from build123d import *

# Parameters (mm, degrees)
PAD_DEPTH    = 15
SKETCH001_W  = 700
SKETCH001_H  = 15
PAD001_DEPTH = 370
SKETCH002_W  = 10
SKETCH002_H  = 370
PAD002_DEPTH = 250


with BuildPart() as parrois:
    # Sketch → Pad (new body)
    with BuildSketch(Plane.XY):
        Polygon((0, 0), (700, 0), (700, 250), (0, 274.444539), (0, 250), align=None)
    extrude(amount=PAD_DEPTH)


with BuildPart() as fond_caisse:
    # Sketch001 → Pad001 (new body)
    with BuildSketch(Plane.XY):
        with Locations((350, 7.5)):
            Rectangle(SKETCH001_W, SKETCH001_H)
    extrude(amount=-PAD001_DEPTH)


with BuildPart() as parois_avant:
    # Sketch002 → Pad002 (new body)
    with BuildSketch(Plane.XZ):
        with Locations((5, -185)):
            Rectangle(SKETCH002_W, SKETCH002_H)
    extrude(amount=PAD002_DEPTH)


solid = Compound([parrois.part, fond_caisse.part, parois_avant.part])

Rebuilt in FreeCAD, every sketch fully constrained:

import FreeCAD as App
import Part
import Sketcher
Q = App.Units.Quantity

doc = App.newDocument("Part")
body = doc.addObject("PartDesign::Body", "Body")

# Sketch on XY plane
sketch1 = body.newObject("Sketcher::SketchObject", "Sketch")
sketch1.AttachmentSupport = (doc.getObject("XY_Plane"), [""])
sketch1.MapMode = "FlatFace"
sketch1.addGeometry([
    Part.LineSegment(App.Vector(0, 0, 0), App.Vector(700, 0, 0)),
    Part.LineSegment(App.Vector(700, 0, 0), App.Vector(700, 250, 0)),
    Part.LineSegment(App.Vector(700, 250, 0), App.Vector(0, 274, 0)),
    Part.LineSegment(App.Vector(0, 274, 0), App.Vector(0, 0, 0)),
], False)
sketch1.addConstraint([
    Sketcher.Constraint("Coincident", 0, 2, 1, 1),
    Sketcher.Constraint("Coincident", 1, 2, 2, 1),
    Sketcher.Constraint("Coincident", 2, 2, 3, 1),
    Sketcher.Constraint("Coincident", 3, 2, 0, 1),
    Sketcher.Constraint("Horizontal", 0),
    Sketcher.Constraint("Vertical", 1),
    Sketcher.Constraint("Vertical", 3),
    Sketcher.Constraint("Coincident", 3, 2, -1, 1),
    Sketcher.Constraint("DistanceX", 0, 1, 0, 2, 700.0),
    Sketcher.Constraint("DistanceY", 1, 1, 1, 2, 250.0),
    Sketcher.Constraint("Angle", 2, Q("178 deg")),
])
pad1 = body.newObject("PartDesign::Pad", "Pad")
pad1.Profile = sketch1
pad1.Length = 15
body2 = doc.addObject("PartDesign::Body", "Body001")

# Sketch on XY plane
sketch2 = body2.newObject("Sketcher::SketchObject", "Sketch001")
sketch2.AttachmentSupport = (doc.getObject("XY_Plane001"), [""])
sketch2.MapMode = "FlatFace"
sketch2.addGeometry([
    Part.LineSegment(App.Vector(0, 15, 0), App.Vector(0, 0, 0)),
    Part.LineSegment(App.Vector(0, 0, 0), App.Vector(700, 0, 0)),
    Part.LineSegment(App.Vector(700, 0, 0), App.Vector(700, 15, 0)),
    Part.LineSegment(App.Vector(700, 15, 0), App.Vector(0, 15, 0)),
], False)
sketch2.addConstraint([
    Sketcher.Constraint("Coincident", 0, 2, 1, 1),
    Sketcher.Constraint("Coincident", 1, 2, 2, 1),
    Sketcher.Constraint("Coincident", 2, 2, 3, 1),
    Sketcher.Constraint("Coincident", 3, 2, 0, 1),
    Sketcher.Constraint("Vertical", 0),
    Sketcher.Constraint("Horizontal", 1),
    Sketcher.Constraint("Vertical", 2),
    Sketcher.Constraint("Horizontal", 3),
    Sketcher.Constraint("Coincident", 0, 2, -1, 1),
    Sketcher.Constraint("DistanceX", 1, 1, 1, 2, 700.0),
    Sketcher.Constraint("DistanceY", 0, 2, 0, 1, 15.0),
])
pad2 = body2.newObject("PartDesign::Pad", "Pad001")
pad2.Profile = sketch2
pad2.Length = 370
pad2.Reversed = True
body3 = doc.addObject("PartDesign::Body", "Body002")

# Sketch on XZ plane
sketch3 = body3.newObject("Sketcher::SketchObject", "Sketch002")
sketch3.AttachmentSupport = (doc.getObject("XZ_Plane002"), [""])
sketch3.MapMode = "FlatFace"
sketch3.addGeometry([
    Part.LineSegment(App.Vector(0, 0, 0), App.Vector(0, -370, 0)),
    Part.LineSegment(App.Vector(0, -370, 0), App.Vector(10, -370, 0)),
    Part.LineSegment(App.Vector(10, -370, 0), App.Vector(10, 0, 0)),
    Part.LineSegment(App.Vector(10, 0, 0), App.Vector(0, 0, 0)),
], False)
sketch3.addConstraint([
    Sketcher.Constraint("Coincident", 0, 2, 1, 1),
    Sketcher.Constraint("Coincident", 1, 2, 2, 1),
    Sketcher.Constraint("Coincident", 2, 2, 3, 1),
    Sketcher.Constraint("Coincident", 3, 2, 0, 1),
    Sketcher.Constraint("Vertical", 0),
    Sketcher.Constraint("Horizontal", 1),
    Sketcher.Constraint("Vertical", 2),
    Sketcher.Constraint("Horizontal", 3),
    Sketcher.Constraint("Coincident", 3, 2, -1, 1),
    Sketcher.Constraint("DistanceX", 1, 1, 1, 2, 10.0),
    Sketcher.Constraint("DistanceY", 0, 2, 0, 1, 370.0),
])
pad3 = body3.newObject("PartDesign::Pad", "Pad002")
pad3.Profile = sketch3
pad3.Length = 250

doc.recompute()
